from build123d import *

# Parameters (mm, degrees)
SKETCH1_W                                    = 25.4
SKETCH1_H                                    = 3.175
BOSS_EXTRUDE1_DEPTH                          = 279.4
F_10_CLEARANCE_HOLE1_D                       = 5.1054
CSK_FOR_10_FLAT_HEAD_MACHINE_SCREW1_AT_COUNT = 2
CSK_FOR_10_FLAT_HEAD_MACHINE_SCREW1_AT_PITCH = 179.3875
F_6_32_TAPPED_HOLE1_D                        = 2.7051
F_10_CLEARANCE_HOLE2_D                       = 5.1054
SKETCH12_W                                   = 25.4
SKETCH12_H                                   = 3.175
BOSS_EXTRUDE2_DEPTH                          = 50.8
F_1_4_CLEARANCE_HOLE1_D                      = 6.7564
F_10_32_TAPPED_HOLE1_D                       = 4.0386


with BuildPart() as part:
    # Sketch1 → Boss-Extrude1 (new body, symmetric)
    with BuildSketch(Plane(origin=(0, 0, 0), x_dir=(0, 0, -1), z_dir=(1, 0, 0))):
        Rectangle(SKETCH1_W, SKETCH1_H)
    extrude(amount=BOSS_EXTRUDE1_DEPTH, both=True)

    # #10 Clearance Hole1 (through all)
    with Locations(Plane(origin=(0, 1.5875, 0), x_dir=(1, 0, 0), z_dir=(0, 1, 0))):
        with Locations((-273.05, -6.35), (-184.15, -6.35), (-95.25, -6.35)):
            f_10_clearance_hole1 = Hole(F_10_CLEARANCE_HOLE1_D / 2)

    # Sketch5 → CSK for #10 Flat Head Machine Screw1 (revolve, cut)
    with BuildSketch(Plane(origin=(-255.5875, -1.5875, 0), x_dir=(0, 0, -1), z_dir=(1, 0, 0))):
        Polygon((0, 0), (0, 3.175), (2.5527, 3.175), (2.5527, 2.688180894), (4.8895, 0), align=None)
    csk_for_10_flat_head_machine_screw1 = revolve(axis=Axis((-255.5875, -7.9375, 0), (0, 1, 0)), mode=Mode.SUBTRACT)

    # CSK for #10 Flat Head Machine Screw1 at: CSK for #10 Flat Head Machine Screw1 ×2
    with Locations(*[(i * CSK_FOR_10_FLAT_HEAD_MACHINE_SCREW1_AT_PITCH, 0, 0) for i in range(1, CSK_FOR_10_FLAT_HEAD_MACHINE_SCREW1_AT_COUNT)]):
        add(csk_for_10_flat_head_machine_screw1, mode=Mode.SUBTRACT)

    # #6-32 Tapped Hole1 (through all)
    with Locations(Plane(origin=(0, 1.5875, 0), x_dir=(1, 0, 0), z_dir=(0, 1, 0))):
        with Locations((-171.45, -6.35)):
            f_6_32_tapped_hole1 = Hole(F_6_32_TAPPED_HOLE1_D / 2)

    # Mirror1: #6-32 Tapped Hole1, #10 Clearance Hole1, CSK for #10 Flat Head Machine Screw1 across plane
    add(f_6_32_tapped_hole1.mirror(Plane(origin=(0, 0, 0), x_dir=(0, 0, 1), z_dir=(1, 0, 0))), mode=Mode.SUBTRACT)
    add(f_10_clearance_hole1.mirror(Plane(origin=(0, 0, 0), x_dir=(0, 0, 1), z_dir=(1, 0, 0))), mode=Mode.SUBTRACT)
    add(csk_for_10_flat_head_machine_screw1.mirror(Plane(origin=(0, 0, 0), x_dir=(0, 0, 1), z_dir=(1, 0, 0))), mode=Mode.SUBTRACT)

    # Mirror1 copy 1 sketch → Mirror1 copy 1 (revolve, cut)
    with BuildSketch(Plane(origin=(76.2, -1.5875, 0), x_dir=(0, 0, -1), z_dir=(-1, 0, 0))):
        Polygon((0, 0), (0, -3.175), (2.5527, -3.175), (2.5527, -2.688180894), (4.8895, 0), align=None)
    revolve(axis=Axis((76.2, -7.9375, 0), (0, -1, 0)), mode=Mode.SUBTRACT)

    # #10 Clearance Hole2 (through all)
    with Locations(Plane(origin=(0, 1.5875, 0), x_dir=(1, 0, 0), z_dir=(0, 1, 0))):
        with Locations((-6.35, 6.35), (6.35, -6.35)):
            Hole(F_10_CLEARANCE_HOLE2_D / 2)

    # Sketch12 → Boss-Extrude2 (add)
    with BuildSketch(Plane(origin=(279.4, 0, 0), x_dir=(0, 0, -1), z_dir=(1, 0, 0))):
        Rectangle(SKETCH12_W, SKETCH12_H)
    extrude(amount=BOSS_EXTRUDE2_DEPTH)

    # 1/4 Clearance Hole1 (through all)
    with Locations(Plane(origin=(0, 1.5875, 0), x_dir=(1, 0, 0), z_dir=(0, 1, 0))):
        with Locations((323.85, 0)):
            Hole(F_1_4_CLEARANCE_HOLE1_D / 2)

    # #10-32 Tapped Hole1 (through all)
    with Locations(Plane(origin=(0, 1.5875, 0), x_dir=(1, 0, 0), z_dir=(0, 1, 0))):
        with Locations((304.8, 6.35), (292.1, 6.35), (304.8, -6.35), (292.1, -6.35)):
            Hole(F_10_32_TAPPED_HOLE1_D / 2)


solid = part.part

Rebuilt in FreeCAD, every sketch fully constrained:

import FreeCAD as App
import Part
import Sketcher
from FreeCAD import Vector
Q = App.Units.Quantity

doc = App.newDocument("Part")
params = doc.addObject("Spreadsheet::Sheet", "Params")
for row, (alias, value) in enumerate([
    ("sketch1_height", "1 in"),
    ("sketch1_width", "0.125 in"),
    ("pad1_length", "22 in"),
    ("sketch2_diameter", "0.201 in"),
    ("hole_diameter", "0.201 in"),
    ("sketch3_width", "0.125 in"),
    ("groove_angle", "360 deg"),
    ("linearpattern_pitch", "7.0625 in"),
    ("hole2_diameter", "0.1065 in"),
    ("sketch5_width", "0.125 in"),
    ("groove2_angle", "360 deg"),
    ("sketch6_diameter", "0.201 in"),
    ("hole3_diameter", "0.201 in"),
    ("sketch7_height", "1 in"),
    ("sketch7_width", "0.125 in"),
    ("pad2_length", "2 in"),
    ("sketch8_diameter", "0.266 in"),
    ("hole4_diameter", "0.266 in"),
    ("sketch9_diameter", "0.159 in"),
    ("hole5_diameter", "0.159 in"),
], start=1):
    params.set(f"A{row}", alias)
    params.set(f"B{row}", "=" + value)
    params.setAlias(f"B{row}", alias)

body = doc.addObject("PartDesign::Body", "Body")

sketch1 = body.newObject("Sketcher::SketchObject", "Sketch")
sketch1.AttachmentSupport = (doc.getObject("YZ_Plane"), [""])
sketch1.MapMode = "FlatFace"
sketch1.addGeometry(Part.LineSegment(Vector(1.6, 12.7, 0), Vector(-1.6, 12.7, 0)), False)
sketch1.addGeometry(Part.LineSegment(Vector(-1.6, 12.7, 0), Vector(-1.6, -12.7, 0)), False)
sketch1.addGeometry(Part.LineSegment(Vector(-1.6, -12.7, 0), Vector(1.6, -12.7, 0)), False)
sketch1.addGeometry(Part.LineSegment(Vector(1.6, -12.7, 0), Vector(1.6, 12.7, 0)), False)
sketch1.addConstraint(Sketcher.Constraint("Coincident", 0, 2, 1, 1))
sketch1.addConstraint(Sketcher.Constraint("Coincident", 1, 2, 2, 1))
sketch1.addConstraint(Sketcher.Constraint("Coincident", 2, 2, 3, 1))
sketch1.addConstraint(Sketcher.Constraint("Coincident", 3, 2, 0, 1))
sketch1.addConstraint(Sketcher.Constraint("Horizontal", 0))
sketch1.addConstraint(Sketcher.Constraint("Vertical", 1))
sketch1.addConstraint(Sketcher.Constraint("Horizontal", 2))
sketch1.addConstraint(Sketcher.Constraint("Vertical", 3))
sketch1.addConstraint(Sketcher.Constraint("Symmetric", 0, 2, 2, 2, -1, 1))
sketch1.addConstraint(Sketcher.Constraint("DistanceY", 1, 2, 1, 1, Q("1 in")))
sketch1.addConstraint(Sketcher.Constraint("DistanceX", 0, 2, 0, 1, Q("0.125 in")))
sketch1.setExpression("Constraints[9]", "Params.sketch1_height")
sketch1.setExpression("Constraints[10]", "Params.sketch1_width")
pad1 = body.newObject("PartDesign::Pad", "Pad")
pad1.Profile = sketch1
pad1.setExpression("Length", "Params.pad1_length")
pad1.Midplane = True

sketch2 = body.newObject("Sketcher::SketchObject", "Sketch001")
sketch2.AttachmentSupport = (doc.getObject("XZ_Plane"), [""])
sketch2.MapMode = "FlatFace"
sketch2.AttachmentOffset = App.Placement(Vector(0, 0, -0.0625 * 25.4), App.Rotation())
sketch2.addGeometry(Part.Circle(Vector(-273.1, 6.3, 0), Vector(0, 0, 1), 2.6), False)
sketch2.addGeometry(Part.Circle(Vector(-184.2, 6.3, 0), Vector(0, 0, 1), 2.6), False)
sketch2.addGeometry(Part.Circle(Vector(-95.2, 6.3, 0), Vector(0, 0, 1), 2.6), False)
sketch2.addConstraint(Sketcher.Constraint("Equal", 0, 1))
sketch2.addConstraint(Sketcher.Constraint("Equal", 1, 2))
sketch2.addConstraint(Sketcher.Constraint("Horizontal", 0, 3, 1, 3))
sketch2.addConstraint(Sketcher.Constraint("Horizontal", 1, 3, 2, 3))
sketch2.addConstraint(Sketcher.Constraint("Diameter", 0, Q("0.201 in")))
sketch2.addConstraint(Sketcher.Constraint("DistanceX", 0, 3, 2, 3, Q("7 in")))
sketch2.addConstraint(Sketcher.Constraint("DistanceX", 0, 3, 1, 3, Q("3.5 in")))
sketch2.addConstraint(Sketcher.Constraint("DistanceX", 0, 3, -1, 1, Q("10.75 in")))
sketch2.addConstraint(Sketcher.Constraint("DistanceY", -1, 1, 0, 3, Q("0.25 in")))
sketch2.setExpression("Constraints[4]", "Params.sketch2_diameter")
doc.recompute()
hole = body.newObject("PartDesign::Hole", "Hole")
hole.Profile = sketch2
hole.ThreadType = "None"
hole.setExpression("Diameter", "Params.hole_diameter")
hole.DepthType = "ThroughAll"
hole.Reversed = True

sketch3 = body.newObject("Sketcher::SketchObject", "Sketch002")
sketch3.AttachmentSupport = (doc.getObject("YZ_Plane"), [""])
sketch3.MapMode = "FlatFace"
sketch3.AttachmentOffset = App.Placement(Vector(0, 0, -10.0625 * 25.4), App.Rotation())
sketch3.addGeometry(Part.LineSegment(Vector(1.59, 0, 0), Vector(-1.59, 0, 0)), False)
sketch3.addGeometry(Part.LineSegment(Vector(-1.59, 0, 0), Vector(-1.59, -4.89, 0)), False)
sketch3.addGeometry(Part.LineSegment(Vector(-1.59, -4.89, 0), Vector(1.1, -2.55, 0)), False)
sketch3.addGeometry(Part.LineSegment(Vector(1.1, -2.55, 0), Vector(1.59, -2.55, 0)), False)
sketch3.addGeometry(Part.LineSegment(Vector(1.59, -2.55, 0), Vector(1.59, 0, 0)), False)
sketch3.addConstraint(Sketcher.Constraint("Coincident", 0, 2, 1, 1))
sketch3.addConstraint(Sketcher.Constraint("Coincident", 1, 2, 2, 1))
sketch3.addConstraint(Sketcher.Constraint("Coincident", 2, 2, 3, 1))
sketch3.addConstraint(Sketcher.Constraint("Coincident", 3, 2, 4, 1))
sketch3.addConstraint(Sketcher.Constraint("Coincident", 4, 2, 0, 1))
sketch3.addConstraint(Sketcher.Constraint("Horizontal", 0))
sketch3.addConstraint(Sketcher.Constraint("Vertical", 1))
sketch3.addConstraint(Sketcher.Constraint("Horizontal", 3))
sketch3.addConstraint(Sketcher.Constraint("Vertical", 4))
sketch3.addConstraint(Sketcher.Constraint("Symmetric", 0, 2, 4, 2, -1, 1))
sketch3.addConstraint(Sketcher.Constraint("Angle", 2, Q("41 deg")))
sketch3.addConstraint(Sketcher.Constraint("DistanceX", 0, 2, 0, 1, Q("0.125 in")))
sketch3.addConstraint(Sketcher.Constraint("DistanceY", 1, 2, 1, 1, Q("0.1925 in")))
sketch3.addConstraint(Sketcher.Constraint("DistanceY", 4, 1, 4, 2, Q("0.1005 in")))
sketch3.setExpression("Constraints[11]", "Params.sketch3_width")
groove = body.newObject("PartDesign::Groove", "Groove")
groove.Profile = sketch3
groove.ReferenceAxis = (sketch3, ["H_Axis"])
groove.setExpression("Angle", "Params.groove_angle")
doc.recompute()

linearpattern = body.newObject("PartDesign::LinearPattern", "LinearPattern")
linearpattern.Originals = [groove]
linearpattern.Direction = (doc.getObject("X_Axis"), [""])
linearpattern.Mode = "offset"
linearpattern.setExpression("Offset", "Params.linearpattern_pitch")
linearpattern.Occurrences = 2
body.Tip = linearpattern

sketch4 = body.newObject("Sketcher::SketchObject", "Sketch003")
sketch4.AttachmentSupport = (doc.getObject("XZ_Plane"), [""])
sketch4.MapMode = "FlatFace"
sketch4.AttachmentOffset = App.Placement(Vector(0, 0, -0.0625 * 25.4), App.Rotation())
sketch4.addGeometry(Part.Circle(Vector(-171.4, 6.3, 0), Vector(0, 0, 1), 1.4), False)
sketch4.addConstraint(Sketcher.Constraint("Diameter", 0, Q("0.1065 in")))
sketch4.addConstraint(Sketcher.Constraint("DistanceX", 0, 3, -1, 1, Q("6.75 in")))
sketch4.addConstraint(Sketcher.Constraint("DistanceY", -1, 1, 0, 3, Q("0.25 in")))
doc.recompute()
hole2 = body.newObject("PartDesign::Hole", "Hole001")
hole2.Profile = sketch4
hole2.ThreadType = "None"
hole2.setExpression("Diameter", "Params.hole2_diameter")
hole2.DepthType = "ThroughAll"
hole2.Reversed = True
doc.recompute()

mirrored = body.newObject("PartDesign::Mirrored", "Mirrored")
mirrored.Originals = [hole2, hole, groove]
mirrored.MirrorPlane = (doc.getObject("YZ_Plane"), [""])
body.Tip = mirrored

sketch5 = body.newObject("Sketcher::SketchObject", "Sketch004")
sketch5.AttachmentSupport = (doc.getObject("YZ_Plane"), [""])
sketch5.MapMode = "FlatFace"
sketch5.AttachmentOffset = App.Placement(Vector(0, 0, 3 * 25.4), App.Rotation())
sketch5.addGeometry(Part.LineSegment(Vector(-1.59, 0, 0), Vector(1.59, 0, 0)), False)
sketch5.addGeometry(Part.LineSegment(Vector(1.59, 0, 0), Vector(1.59, -2.55, 0)), False)
sketch5.addGeometry(Part.LineSegment(Vector(1.59, -2.55, 0), Vector(1.1, -2.55, 0)), False)
sketch5.addGeometry(Part.LineSegment(Vector(1.1, -2.55, 0), Vector(-1.59, -4.89, 0)), False)
sketch5.addGeometry(Part.LineSegment(Vector(-1.59, -4.89, 0), Vector(-1.59, 0, 0)), False)
sketch5.addConstraint(Sketcher.Constraint("Coincident", 0, 2, 1, 1))
sketch5.addConstraint(Sketcher.Constraint("Coincident", 1, 2, 2, 1))
sketch5.addConstraint(Sketcher.Constraint("Coincident", 2, 2, 3, 1))
sketch5.addConstraint(Sketcher.Constraint("Coincident", 3, 2, 4, 1))
sketch5.addConstraint(Sketcher.Constraint("Coincident", 4, 2, 0, 1))
sketch5.addConstraint(Sketcher.Constraint("Horizontal", 0))
sketch5.addConstraint(Sketcher.Constraint("Vertical", 1))
sketch5.addConstraint(Sketcher.Constraint("Horizontal", 2))
sketch5.addConstraint(Sketcher.Constraint("Vertical", 4))
sketch5.addConstraint(Sketcher.Constraint("Symmetric", 0, 2, 4, 2, -1, 1))
sketch5.addConstraint(Sketcher.Constraint("Angle", 3, Q("-139 deg")))
sketch5.addConstraint(Sketcher.Constraint("DistanceX", 0, 1, 0, 2, Q("0.125 in")))
sketch5.addConstraint(Sketcher.Constraint("DistanceY", 1, 2, 1, 1, Q("0.1005 in")))
sketch5.addConstraint(Sketcher.Constraint("DistanceY", 4, 1, 4, 2, Q("0.1925 in")))
sketch5.setExpression("Constraints[11]", "Params.sketch5_width")
groove2 = body.newObject("PartDesign::Groove", "Groove001")
groove2.Profile = sketch5
groove2.ReferenceAxis = (sketch5, ["H_Axis"])
groove2.setExpression("Angle", "Params.groove2_angle")

sketch6 = body.newObject("Sketcher::SketchObject", "Sketch005")
sketch6.AttachmentSupport = (doc.getObject("XZ_Plane"), [""])
sketch6.MapMode = "FlatFace"
sketch6.AttachmentOffset = App.Placement(Vector(0, 0, -0.0625 * 25.4), App.Rotation())
sketch6.addGeometry(Part.Circle(Vector(-6.3, -6.3, 0), Vector(0, 0, 1), 2.6), False)
sketch6.addGeometry(Part.Circle(Vector(6.3, 6.3, 0), Vector(0, 0, 1), 2.6), False)
sketch6.addConstraint(Sketcher.Constraint("Equal", 0, 1))
sketch6.addConstraint(Sketcher.Constraint("Symmetric", 0, 3, 1, 3, -1, 1))
sketch6.addConstraint(Sketcher.Constraint("Diameter", 0, Q("0.201 in")))
sketch6.addConstraint(Sketcher.Constraint("DistanceX", 0, 3, 1, 3, Q("0.5 in")))
sketch6.addConstraint(Sketcher.Constraint("DistanceY", 0, 3, 1, 3, Q("0.5 in")))
sketch6.setExpression("Constraints[2]", "Params.sketch6_diameter")
doc.recompute()
hole3 = body.newObject("PartDesign::Hole", "Hole002")
hole3.Profile = sketch6
hole3.ThreadType = "None"
hole3.setExpression("Diameter", "Params.hole3_diameter")
hole3.DepthType = "ThroughAll"
hole3.Reversed = True

sketch7 = body.newObject("Sketcher::SketchObject", "Sketch006")
sketch7.AttachmentSupport = (doc.getObject("YZ_Plane"), [""])
sketch7.MapMode = "FlatFace"
sketch7.AttachmentOffset = App.Placement(Vector(0, 0, 11 * 25.4), App.Rotation())
sketch7.addGeometry(Part.LineSegment(Vector(1.6, 12.7, 0), Vector(-1.6, 12.7, 0)), False)
sketch7.addGeometry(Part.LineSegment(Vector(-1.6, 12.7, 0), Vector(-1.6, -12.7, 0)), False)
sketch7.addGeometry(Part.LineSegment(Vector(-1.6, -12.7, 0), Vector(1.6, -12.7, 0)), False)
sketch7.addGeometry(Part.LineSegment(Vector(1.6, -12.7, 0), Vector(1.6, 12.7, 0)), False)
sketch7.addConstraint(Sketcher.Constraint("Coincident", 0, 2, 1, 1))
sketch7.addConstraint(Sketcher.Constraint("Coincident", 1, 2, 2, 1))
sketch7.addConstraint(Sketcher.Constraint("Coincident", 2, 2, 3, 1))
sketch7.addConstraint(Sketcher.Constraint("Coincident", 3, 2, 0, 1))
sketch7.addConstraint(Sketcher.Constraint("Horizontal", 0))
sketch7.addConstraint(Sketcher.Constraint("Vertical", 1))
sketch7.addConstraint(Sketcher.Constraint("Horizontal", 2))
sketch7.addConstraint(Sketcher.Constraint("Vertical", 3))
sketch7.addConstraint(Sketcher.Constraint("Symmetric", 0, 2, 2, 2, -1, 1))
sketch7.addConstraint(Sketcher.Constraint("DistanceY", 1, 2, 1, 1, Q("1 in")))
sketch7.addConstraint(Sketcher.Constraint("DistanceX", 0, 2, 0, 1, Q("0.125 in")))
sketch7.setExpression("Constraints[9]", "Params.sketch7_height")
sketch7.setExpression("Constraints[10]", "Params.sketch7_width")
pad2 = body.newObject("PartDesign::Pad", "Pad001")
pad2.Profile = sketch7
pad2.setExpression("Length", "Params.pad2_length")

sketch8 = body.newObject("Sketcher::SketchObject", "Sketch007")
sketch8.AttachmentSupport = (doc.getObject("XZ_Plane"), [""])
sketch8.MapMode = "FlatFace"
sketch8.AttachmentOffset = App.Placement(Vector(0, 0, -0.0625 * 25.4), App.Rotation())
sketch8.addGeometry(Part.Circle(Vector(323.9, 0, 0), Vector(0, 0, 1), 3.4), False)
sketch8.addConstraint(Sketcher.Constraint("PointOnObject", 0, 3, -1))
sketch8.addConstraint(Sketcher.Constraint("Diameter", 0, Q("0.266 in")))
sketch8.addConstraint(Sketcher.Constraint("DistanceX", -1, 1, 0, 3, Q("12.75 in")))
sketch8.setExpression("Constraints[1]", "Params.sketch8_diameter")
doc.recompute()
hole4 = body.newObject("PartDesign::Hole", "Hole003")
hole4.Profile = sketch8
hole4.ThreadType = "None"
hole4.setExpression("Diameter", "Params.hole4_diameter")
hole4.DepthType = "ThroughAll"
hole4.Reversed = True

sketch9 = body.newObject("Sketcher::SketchObject", "Sketch008")
sketch9.AttachmentSupport = (doc.getObject("XZ_Plane"), [""])
sketch9.MapMode = "FlatFace"
sketch9.AttachmentOffset = App.Placement(Vector(0, 0, -0.0625 * 25.4), App.Rotation())
sketch9.addGeometry(Part.Circle(Vector(304.8, -6.3, 0), Vector(0, 0, 1), 2), False)
sketch9.addGeometry(Part.Circle(Vector(292.1, -6.3, 0), Vector(0, 0, 1), 2), False)
sketch9.addGeometry(Part.Circle(Vector(304.8, 6.3, 0), Vector(0, 0, 1), 2), False)
sketch9.addGeometry(Part.Circle(Vector(292.1, 6.3, 0), Vector(0, 0, 1), 2), False)
sketch9.addConstraint(Sketcher.Constraint("Equal", 0, 1))
sketch9.addConstraint(Sketcher.Constraint("Equal", 1, 2))
sketch9.addConstraint(Sketcher.Constraint("Equal", 2, 3))
sketch9.addConstraint(Sketcher.Constraint("Symmetric", 0, 3, 2, 3, -1))
sketch9.addConstraint(Sketcher.Constraint("Symmetric", 1, 3, 3, 3, -1))
sketch9.addConstraint(Sketcher.Constraint("Horizontal", 0, 3, 1, 3))
sketch9.addConstraint(Sketcher.Constraint("Diameter", 0, Q("0.159 in")))
sketch9.addConstraint(Sketcher.Constraint("DistanceX", -1, 1, 0, 3, Q("12 in")))
sketch9.addConstraint(Sketcher.Constraint("DistanceX", -1, 1, 1, 3, Q("11.5 in")))
sketch9.addConstraint(Sketcher.Constraint("DistanceY", 0, 3, 2, 3, Q("0.5 in")))
sketch9.setExpression("Constraints[6]", "Params.sketch9_diameter")
doc.recompute()
hole5 = body.newObject("PartDesign::Hole", "Hole004")
hole5.Profile = sketch9
hole5.ThreadType = "None"
hole5.setExpression("Diameter", "Params.hole5_diameter")
hole5.DepthType = "ThroughAll"
hole5.Reversed = True

doc.recompute()
